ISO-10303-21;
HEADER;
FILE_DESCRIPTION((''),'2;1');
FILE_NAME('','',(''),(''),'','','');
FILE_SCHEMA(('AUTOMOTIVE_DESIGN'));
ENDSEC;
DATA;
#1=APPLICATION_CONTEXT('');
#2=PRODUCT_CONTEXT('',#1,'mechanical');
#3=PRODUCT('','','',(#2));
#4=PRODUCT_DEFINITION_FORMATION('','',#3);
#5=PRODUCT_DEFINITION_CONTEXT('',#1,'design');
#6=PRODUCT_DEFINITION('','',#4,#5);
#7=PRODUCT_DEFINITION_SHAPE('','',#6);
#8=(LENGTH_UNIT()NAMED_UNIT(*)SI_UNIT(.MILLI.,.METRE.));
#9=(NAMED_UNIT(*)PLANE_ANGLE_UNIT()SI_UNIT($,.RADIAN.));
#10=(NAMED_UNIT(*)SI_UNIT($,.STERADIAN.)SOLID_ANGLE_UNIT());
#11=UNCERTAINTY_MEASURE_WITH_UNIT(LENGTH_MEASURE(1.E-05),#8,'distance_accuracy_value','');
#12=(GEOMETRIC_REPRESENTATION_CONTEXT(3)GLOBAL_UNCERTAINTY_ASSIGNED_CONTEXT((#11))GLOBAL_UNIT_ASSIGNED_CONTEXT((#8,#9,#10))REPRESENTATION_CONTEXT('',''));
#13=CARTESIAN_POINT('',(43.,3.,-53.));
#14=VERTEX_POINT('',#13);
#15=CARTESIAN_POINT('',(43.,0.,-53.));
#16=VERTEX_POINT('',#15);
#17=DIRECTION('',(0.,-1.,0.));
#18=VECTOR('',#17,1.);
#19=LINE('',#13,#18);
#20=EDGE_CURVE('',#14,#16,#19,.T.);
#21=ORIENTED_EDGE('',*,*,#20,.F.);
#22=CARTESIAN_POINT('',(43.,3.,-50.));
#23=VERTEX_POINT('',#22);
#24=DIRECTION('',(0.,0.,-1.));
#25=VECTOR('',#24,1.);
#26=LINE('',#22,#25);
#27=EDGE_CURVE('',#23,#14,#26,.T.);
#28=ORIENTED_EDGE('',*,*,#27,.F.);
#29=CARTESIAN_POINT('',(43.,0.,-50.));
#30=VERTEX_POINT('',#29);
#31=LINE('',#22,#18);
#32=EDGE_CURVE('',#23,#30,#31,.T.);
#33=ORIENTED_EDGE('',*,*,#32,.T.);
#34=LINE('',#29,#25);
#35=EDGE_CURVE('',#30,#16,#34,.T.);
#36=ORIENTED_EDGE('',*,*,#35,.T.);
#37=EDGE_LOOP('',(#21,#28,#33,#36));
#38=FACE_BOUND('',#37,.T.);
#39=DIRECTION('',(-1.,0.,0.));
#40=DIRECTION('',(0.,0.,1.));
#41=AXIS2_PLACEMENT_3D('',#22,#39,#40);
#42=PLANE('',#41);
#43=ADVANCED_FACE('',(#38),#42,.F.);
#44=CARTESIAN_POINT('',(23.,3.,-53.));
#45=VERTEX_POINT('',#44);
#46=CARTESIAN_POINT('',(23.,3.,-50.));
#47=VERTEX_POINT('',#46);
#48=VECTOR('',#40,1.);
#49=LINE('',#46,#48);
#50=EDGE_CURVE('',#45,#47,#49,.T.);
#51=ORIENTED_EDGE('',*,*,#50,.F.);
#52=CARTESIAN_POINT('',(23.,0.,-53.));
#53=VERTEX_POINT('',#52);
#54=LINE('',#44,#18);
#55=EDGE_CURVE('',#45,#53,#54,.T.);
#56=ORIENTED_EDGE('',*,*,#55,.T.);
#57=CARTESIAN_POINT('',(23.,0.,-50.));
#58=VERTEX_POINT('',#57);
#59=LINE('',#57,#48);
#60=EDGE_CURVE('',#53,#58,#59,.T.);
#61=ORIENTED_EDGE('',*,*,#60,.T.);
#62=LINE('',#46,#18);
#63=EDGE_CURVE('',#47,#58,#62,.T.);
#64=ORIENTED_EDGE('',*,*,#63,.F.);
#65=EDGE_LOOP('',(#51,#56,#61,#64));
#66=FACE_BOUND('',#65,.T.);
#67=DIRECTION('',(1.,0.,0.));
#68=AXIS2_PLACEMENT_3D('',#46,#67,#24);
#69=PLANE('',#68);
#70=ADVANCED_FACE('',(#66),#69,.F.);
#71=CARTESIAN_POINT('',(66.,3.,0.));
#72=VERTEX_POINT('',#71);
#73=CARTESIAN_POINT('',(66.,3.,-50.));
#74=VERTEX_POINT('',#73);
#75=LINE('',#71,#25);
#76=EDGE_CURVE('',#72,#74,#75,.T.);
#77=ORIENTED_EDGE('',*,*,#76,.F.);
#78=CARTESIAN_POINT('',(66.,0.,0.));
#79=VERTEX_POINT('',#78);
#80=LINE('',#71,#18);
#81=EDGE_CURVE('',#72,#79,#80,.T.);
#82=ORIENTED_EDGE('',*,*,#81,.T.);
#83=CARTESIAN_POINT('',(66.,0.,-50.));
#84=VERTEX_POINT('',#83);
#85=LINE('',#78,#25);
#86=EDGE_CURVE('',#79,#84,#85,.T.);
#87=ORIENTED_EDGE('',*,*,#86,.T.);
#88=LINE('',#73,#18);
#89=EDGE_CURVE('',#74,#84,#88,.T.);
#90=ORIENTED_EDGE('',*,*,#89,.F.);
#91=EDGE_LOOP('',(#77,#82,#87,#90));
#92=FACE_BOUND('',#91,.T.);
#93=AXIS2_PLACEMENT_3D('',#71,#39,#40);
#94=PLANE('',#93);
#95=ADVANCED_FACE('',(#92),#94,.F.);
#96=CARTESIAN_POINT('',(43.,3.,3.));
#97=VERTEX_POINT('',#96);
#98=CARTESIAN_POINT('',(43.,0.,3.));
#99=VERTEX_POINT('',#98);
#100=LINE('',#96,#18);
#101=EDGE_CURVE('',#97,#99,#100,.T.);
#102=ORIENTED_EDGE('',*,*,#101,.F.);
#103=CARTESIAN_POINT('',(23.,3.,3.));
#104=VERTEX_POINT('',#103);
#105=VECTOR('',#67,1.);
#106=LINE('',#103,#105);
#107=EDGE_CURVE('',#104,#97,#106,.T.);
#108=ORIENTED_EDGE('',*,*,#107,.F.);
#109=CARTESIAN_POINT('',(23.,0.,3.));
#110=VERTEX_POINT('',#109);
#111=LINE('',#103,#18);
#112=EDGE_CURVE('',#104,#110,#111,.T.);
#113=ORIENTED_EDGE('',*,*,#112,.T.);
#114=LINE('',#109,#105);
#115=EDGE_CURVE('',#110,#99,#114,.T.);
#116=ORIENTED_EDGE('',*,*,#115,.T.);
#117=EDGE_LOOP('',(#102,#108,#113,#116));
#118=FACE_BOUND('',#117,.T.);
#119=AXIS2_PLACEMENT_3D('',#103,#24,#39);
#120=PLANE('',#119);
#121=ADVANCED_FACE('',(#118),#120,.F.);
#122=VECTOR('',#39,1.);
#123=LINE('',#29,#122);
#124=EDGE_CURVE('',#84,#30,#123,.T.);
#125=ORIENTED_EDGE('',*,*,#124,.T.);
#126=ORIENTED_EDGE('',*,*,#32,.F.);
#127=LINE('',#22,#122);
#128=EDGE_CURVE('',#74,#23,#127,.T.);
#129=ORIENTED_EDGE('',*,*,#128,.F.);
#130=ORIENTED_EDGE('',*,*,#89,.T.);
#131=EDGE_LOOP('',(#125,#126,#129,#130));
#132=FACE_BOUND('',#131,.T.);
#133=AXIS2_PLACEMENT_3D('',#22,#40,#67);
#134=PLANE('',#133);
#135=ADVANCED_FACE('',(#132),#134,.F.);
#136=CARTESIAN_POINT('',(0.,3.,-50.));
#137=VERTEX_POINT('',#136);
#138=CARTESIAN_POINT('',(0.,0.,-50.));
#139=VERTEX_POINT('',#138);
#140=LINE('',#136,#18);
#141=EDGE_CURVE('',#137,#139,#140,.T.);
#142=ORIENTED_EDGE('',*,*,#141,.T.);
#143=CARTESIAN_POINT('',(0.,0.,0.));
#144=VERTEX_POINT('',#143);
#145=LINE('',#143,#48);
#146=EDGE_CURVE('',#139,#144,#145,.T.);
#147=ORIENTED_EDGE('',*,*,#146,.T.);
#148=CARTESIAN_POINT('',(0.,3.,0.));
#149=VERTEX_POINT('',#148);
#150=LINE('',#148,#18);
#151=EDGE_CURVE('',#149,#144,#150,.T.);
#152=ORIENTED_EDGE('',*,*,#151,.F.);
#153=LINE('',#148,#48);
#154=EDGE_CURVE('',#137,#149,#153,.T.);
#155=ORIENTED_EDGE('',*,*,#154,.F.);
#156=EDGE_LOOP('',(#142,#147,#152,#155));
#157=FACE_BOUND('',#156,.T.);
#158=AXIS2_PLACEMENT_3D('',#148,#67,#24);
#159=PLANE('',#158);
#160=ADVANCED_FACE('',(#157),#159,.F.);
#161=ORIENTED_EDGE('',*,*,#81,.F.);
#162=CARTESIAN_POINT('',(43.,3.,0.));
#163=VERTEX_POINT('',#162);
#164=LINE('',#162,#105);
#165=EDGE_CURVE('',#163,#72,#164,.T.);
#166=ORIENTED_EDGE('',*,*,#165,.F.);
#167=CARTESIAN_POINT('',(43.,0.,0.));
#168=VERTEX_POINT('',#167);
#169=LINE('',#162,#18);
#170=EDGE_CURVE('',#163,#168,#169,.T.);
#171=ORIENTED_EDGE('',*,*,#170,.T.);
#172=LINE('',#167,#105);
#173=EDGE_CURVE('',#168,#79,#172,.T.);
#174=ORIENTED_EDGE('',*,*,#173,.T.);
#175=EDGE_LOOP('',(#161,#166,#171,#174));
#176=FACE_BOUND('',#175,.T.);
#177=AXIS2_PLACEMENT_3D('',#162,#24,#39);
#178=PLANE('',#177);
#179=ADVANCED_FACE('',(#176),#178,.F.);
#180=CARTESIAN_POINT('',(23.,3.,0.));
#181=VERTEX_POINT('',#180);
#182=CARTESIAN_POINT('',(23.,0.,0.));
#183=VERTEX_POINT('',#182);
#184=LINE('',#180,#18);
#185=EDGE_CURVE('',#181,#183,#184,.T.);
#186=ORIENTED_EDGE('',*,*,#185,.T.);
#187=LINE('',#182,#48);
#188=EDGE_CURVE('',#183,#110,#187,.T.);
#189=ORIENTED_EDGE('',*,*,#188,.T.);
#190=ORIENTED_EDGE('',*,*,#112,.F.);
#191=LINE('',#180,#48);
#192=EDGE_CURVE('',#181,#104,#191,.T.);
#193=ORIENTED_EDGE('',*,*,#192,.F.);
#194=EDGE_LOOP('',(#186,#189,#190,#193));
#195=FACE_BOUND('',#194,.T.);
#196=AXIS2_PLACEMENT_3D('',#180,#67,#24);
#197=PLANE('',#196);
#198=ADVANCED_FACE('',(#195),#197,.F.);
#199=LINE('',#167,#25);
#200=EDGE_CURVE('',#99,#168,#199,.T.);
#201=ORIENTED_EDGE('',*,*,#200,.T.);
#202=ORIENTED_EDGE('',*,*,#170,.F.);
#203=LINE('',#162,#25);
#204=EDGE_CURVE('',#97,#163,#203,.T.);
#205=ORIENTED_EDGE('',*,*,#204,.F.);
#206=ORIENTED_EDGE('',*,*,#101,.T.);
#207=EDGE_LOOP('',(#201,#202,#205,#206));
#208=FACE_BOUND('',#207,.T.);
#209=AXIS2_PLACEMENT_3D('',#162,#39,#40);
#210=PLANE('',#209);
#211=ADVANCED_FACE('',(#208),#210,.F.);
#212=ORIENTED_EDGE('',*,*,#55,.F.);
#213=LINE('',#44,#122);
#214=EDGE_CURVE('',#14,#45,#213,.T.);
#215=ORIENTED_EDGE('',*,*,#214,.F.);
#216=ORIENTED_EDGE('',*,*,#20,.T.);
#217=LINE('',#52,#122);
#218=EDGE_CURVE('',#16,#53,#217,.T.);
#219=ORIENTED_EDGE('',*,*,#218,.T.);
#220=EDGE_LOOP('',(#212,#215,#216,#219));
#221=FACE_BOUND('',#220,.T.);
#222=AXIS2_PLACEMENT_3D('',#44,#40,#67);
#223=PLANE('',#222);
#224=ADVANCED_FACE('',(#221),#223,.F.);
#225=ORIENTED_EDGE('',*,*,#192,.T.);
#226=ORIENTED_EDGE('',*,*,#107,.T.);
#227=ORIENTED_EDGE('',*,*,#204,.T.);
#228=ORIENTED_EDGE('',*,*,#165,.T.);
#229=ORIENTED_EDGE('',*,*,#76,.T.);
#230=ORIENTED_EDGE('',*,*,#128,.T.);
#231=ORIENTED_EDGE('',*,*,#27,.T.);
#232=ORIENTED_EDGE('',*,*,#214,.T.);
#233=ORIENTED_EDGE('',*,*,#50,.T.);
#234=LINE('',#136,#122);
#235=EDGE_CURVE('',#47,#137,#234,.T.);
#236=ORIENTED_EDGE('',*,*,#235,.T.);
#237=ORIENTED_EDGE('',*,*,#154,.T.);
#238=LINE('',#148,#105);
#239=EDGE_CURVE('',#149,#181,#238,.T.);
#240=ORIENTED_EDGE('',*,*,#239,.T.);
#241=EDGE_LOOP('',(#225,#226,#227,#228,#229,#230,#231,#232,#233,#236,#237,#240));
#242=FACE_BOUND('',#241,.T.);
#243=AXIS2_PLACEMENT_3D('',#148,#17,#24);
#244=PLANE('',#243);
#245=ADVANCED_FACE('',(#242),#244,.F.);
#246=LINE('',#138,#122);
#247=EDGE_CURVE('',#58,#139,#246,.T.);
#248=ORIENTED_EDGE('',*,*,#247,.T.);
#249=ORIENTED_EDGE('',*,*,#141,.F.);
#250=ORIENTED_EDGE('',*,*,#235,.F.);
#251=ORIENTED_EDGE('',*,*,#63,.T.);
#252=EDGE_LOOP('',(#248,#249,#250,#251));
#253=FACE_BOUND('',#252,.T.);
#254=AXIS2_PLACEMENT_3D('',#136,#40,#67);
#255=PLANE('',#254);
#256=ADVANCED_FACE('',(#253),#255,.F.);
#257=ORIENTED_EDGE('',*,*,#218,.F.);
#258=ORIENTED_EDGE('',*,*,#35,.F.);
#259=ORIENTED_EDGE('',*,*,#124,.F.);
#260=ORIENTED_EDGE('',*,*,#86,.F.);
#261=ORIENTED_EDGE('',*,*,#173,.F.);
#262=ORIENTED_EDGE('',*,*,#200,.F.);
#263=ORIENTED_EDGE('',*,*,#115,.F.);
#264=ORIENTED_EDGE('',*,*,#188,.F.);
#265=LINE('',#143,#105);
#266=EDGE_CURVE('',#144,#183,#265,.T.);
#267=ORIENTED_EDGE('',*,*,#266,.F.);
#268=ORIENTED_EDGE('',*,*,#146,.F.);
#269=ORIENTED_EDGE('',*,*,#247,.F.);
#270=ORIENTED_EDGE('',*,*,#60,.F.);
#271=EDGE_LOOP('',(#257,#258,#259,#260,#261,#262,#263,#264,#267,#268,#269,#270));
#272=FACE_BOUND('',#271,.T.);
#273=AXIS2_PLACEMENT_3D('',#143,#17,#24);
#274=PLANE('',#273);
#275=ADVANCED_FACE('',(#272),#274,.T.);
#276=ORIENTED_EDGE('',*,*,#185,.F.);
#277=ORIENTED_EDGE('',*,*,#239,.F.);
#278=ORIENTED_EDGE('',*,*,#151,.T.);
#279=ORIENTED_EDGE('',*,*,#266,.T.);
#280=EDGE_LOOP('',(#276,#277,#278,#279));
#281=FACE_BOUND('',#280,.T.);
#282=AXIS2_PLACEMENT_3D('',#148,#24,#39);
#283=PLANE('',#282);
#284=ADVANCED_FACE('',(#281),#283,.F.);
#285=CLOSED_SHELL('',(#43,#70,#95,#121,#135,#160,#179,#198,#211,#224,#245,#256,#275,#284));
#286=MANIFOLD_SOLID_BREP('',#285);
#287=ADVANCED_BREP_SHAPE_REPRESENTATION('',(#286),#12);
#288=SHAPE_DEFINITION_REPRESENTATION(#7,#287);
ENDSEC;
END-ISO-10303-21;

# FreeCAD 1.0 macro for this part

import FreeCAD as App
import Part
import Sketcher
from FreeCAD import Vector
Q = App.Units.Quantity

doc = App.newDocument("Part")
body = doc.addObject("PartDesign::Body", "Body")

sketch1 = body.newObject("Sketcher::SketchObject", "Sketch")
sketch1.AttachmentSupport = (doc.getObject("XZ_Plane"), [""])
sketch1.MapMode = "FlatFace"
sketch1.addGeometry([
    Part.LineSegment(Vector(0, 0, 0), Vector(23, 0, 0)),
    Part.LineSegment(Vector(23, 0, 0), Vector(23, 3, 0)),
    Part.LineSegment(Vector(23, 3, 0), Vector(43, 3, 0)),
    Part.LineSegment(Vector(43, 3, 0), Vector(43, 0, 0)),
    Part.LineSegment(Vector(43, 0, 0), Vector(66, 0, 0)),
    Part.LineSegment(Vector(66, 0, 0), Vector(66, -50, 0)),
    Part.LineSegment(Vector(66, -50, 0), Vector(43, -50, 0)),
    Part.LineSegment(Vector(43, -50, 0), Vector(43, -53, 0)),
    Part.LineSegment(Vector(43, -53, 0), Vector(23, -53, 0)),
    Part.LineSegment(Vector(23, -53, 0), Vector(23, -50, 0)),
    Part.LineSegment(Vector(23, -50, 0), Vector(0, -50, 0)),
    Part.LineSegment(Vector(0, -50, 0), Vector(0, 0, 0)),
], False)
sketch1.addConstraint([
    Sketcher.Constraint("Coincident", 0, 2, 1, 1),
    Sketcher.Constraint("Coincident", 1, 2, 2, 1),
    Sketcher.Constraint("Coincident", 2, 2, 3, 1),
    Sketcher.Constraint("Coincident", 3, 2, 4, 1),
    Sketcher.Constraint("Coincident", 4, 2, 5, 1),
    Sketcher.Constraint("Coincident", 5, 2, 6, 1),
    Sketcher.Constraint("Coincident", 6, 2, 7, 1),
    Sketcher.Constraint("Coincident", 7, 2, 8, 1),
    Sketcher.Constraint("Coincident", 8, 2, 9, 1),
    Sketcher.Constraint("Coincident", 9, 2, 10, 1),
    Sketcher.Constraint("Coincident", 10, 2, 11, 1),
    Sketcher.Constraint("Coincident", 11, 2, 0, 1),
    Sketcher.Constraint("Horizontal", 0),
    Sketcher.Constraint("Vertical", 1),
    Sketcher.Constraint("Horizontal", 2),
    Sketcher.Constraint("Vertical", 3),
    Sketcher.Constraint("Horizontal", 4),
    Sketcher.Constraint("Vertical", 5),
    Sketcher.Constraint("Horizontal", 6),
    Sketcher.Constraint("Vertical", 7),
    Sketcher.Constraint("Horizontal", 8),
    Sketcher.Constraint("Vertical", 9),
    Sketcher.Constraint("Horizontal", 10),
    Sketcher.Constraint("Vertical", 11),
    Sketcher.Constraint("Coincident", 11, 2, -1, 1),
    Sketcher.Constraint("PointOnObject", 3, 2, -1),
    Sketcher.Constraint("Horizontal", 6, 2, 9, 2),
    Sketcher.Constraint("Vertical", 3, 2, 6, 2),
    Sketcher.Constraint("Vertical", 1, 2, 8, 2),
    Sketcher.Constraint("Equal", 0, 4),
    Sketcher.Constraint("Equal", 3, 7),
    Sketcher.Constraint("DistanceX", 0, 1, 0, 2, Q("23 mm")),
    Sketcher.Constraint("DistanceX", 2, 1, 2, 2, Q("20 mm")),
    Sketcher.Constraint("DistanceY", 1, 1, 1, 2, Q("3 mm")),
    Sketcher.Constraint("DistanceY", 5, 2, 5, 1, Q("50 mm")),
])
pad1 = body.newObject("PartDesign::Pad", "Pad")
pad1.Profile = sketch1
pad1.Length = 3
pad1.Reversed = True

doc.recompute()
